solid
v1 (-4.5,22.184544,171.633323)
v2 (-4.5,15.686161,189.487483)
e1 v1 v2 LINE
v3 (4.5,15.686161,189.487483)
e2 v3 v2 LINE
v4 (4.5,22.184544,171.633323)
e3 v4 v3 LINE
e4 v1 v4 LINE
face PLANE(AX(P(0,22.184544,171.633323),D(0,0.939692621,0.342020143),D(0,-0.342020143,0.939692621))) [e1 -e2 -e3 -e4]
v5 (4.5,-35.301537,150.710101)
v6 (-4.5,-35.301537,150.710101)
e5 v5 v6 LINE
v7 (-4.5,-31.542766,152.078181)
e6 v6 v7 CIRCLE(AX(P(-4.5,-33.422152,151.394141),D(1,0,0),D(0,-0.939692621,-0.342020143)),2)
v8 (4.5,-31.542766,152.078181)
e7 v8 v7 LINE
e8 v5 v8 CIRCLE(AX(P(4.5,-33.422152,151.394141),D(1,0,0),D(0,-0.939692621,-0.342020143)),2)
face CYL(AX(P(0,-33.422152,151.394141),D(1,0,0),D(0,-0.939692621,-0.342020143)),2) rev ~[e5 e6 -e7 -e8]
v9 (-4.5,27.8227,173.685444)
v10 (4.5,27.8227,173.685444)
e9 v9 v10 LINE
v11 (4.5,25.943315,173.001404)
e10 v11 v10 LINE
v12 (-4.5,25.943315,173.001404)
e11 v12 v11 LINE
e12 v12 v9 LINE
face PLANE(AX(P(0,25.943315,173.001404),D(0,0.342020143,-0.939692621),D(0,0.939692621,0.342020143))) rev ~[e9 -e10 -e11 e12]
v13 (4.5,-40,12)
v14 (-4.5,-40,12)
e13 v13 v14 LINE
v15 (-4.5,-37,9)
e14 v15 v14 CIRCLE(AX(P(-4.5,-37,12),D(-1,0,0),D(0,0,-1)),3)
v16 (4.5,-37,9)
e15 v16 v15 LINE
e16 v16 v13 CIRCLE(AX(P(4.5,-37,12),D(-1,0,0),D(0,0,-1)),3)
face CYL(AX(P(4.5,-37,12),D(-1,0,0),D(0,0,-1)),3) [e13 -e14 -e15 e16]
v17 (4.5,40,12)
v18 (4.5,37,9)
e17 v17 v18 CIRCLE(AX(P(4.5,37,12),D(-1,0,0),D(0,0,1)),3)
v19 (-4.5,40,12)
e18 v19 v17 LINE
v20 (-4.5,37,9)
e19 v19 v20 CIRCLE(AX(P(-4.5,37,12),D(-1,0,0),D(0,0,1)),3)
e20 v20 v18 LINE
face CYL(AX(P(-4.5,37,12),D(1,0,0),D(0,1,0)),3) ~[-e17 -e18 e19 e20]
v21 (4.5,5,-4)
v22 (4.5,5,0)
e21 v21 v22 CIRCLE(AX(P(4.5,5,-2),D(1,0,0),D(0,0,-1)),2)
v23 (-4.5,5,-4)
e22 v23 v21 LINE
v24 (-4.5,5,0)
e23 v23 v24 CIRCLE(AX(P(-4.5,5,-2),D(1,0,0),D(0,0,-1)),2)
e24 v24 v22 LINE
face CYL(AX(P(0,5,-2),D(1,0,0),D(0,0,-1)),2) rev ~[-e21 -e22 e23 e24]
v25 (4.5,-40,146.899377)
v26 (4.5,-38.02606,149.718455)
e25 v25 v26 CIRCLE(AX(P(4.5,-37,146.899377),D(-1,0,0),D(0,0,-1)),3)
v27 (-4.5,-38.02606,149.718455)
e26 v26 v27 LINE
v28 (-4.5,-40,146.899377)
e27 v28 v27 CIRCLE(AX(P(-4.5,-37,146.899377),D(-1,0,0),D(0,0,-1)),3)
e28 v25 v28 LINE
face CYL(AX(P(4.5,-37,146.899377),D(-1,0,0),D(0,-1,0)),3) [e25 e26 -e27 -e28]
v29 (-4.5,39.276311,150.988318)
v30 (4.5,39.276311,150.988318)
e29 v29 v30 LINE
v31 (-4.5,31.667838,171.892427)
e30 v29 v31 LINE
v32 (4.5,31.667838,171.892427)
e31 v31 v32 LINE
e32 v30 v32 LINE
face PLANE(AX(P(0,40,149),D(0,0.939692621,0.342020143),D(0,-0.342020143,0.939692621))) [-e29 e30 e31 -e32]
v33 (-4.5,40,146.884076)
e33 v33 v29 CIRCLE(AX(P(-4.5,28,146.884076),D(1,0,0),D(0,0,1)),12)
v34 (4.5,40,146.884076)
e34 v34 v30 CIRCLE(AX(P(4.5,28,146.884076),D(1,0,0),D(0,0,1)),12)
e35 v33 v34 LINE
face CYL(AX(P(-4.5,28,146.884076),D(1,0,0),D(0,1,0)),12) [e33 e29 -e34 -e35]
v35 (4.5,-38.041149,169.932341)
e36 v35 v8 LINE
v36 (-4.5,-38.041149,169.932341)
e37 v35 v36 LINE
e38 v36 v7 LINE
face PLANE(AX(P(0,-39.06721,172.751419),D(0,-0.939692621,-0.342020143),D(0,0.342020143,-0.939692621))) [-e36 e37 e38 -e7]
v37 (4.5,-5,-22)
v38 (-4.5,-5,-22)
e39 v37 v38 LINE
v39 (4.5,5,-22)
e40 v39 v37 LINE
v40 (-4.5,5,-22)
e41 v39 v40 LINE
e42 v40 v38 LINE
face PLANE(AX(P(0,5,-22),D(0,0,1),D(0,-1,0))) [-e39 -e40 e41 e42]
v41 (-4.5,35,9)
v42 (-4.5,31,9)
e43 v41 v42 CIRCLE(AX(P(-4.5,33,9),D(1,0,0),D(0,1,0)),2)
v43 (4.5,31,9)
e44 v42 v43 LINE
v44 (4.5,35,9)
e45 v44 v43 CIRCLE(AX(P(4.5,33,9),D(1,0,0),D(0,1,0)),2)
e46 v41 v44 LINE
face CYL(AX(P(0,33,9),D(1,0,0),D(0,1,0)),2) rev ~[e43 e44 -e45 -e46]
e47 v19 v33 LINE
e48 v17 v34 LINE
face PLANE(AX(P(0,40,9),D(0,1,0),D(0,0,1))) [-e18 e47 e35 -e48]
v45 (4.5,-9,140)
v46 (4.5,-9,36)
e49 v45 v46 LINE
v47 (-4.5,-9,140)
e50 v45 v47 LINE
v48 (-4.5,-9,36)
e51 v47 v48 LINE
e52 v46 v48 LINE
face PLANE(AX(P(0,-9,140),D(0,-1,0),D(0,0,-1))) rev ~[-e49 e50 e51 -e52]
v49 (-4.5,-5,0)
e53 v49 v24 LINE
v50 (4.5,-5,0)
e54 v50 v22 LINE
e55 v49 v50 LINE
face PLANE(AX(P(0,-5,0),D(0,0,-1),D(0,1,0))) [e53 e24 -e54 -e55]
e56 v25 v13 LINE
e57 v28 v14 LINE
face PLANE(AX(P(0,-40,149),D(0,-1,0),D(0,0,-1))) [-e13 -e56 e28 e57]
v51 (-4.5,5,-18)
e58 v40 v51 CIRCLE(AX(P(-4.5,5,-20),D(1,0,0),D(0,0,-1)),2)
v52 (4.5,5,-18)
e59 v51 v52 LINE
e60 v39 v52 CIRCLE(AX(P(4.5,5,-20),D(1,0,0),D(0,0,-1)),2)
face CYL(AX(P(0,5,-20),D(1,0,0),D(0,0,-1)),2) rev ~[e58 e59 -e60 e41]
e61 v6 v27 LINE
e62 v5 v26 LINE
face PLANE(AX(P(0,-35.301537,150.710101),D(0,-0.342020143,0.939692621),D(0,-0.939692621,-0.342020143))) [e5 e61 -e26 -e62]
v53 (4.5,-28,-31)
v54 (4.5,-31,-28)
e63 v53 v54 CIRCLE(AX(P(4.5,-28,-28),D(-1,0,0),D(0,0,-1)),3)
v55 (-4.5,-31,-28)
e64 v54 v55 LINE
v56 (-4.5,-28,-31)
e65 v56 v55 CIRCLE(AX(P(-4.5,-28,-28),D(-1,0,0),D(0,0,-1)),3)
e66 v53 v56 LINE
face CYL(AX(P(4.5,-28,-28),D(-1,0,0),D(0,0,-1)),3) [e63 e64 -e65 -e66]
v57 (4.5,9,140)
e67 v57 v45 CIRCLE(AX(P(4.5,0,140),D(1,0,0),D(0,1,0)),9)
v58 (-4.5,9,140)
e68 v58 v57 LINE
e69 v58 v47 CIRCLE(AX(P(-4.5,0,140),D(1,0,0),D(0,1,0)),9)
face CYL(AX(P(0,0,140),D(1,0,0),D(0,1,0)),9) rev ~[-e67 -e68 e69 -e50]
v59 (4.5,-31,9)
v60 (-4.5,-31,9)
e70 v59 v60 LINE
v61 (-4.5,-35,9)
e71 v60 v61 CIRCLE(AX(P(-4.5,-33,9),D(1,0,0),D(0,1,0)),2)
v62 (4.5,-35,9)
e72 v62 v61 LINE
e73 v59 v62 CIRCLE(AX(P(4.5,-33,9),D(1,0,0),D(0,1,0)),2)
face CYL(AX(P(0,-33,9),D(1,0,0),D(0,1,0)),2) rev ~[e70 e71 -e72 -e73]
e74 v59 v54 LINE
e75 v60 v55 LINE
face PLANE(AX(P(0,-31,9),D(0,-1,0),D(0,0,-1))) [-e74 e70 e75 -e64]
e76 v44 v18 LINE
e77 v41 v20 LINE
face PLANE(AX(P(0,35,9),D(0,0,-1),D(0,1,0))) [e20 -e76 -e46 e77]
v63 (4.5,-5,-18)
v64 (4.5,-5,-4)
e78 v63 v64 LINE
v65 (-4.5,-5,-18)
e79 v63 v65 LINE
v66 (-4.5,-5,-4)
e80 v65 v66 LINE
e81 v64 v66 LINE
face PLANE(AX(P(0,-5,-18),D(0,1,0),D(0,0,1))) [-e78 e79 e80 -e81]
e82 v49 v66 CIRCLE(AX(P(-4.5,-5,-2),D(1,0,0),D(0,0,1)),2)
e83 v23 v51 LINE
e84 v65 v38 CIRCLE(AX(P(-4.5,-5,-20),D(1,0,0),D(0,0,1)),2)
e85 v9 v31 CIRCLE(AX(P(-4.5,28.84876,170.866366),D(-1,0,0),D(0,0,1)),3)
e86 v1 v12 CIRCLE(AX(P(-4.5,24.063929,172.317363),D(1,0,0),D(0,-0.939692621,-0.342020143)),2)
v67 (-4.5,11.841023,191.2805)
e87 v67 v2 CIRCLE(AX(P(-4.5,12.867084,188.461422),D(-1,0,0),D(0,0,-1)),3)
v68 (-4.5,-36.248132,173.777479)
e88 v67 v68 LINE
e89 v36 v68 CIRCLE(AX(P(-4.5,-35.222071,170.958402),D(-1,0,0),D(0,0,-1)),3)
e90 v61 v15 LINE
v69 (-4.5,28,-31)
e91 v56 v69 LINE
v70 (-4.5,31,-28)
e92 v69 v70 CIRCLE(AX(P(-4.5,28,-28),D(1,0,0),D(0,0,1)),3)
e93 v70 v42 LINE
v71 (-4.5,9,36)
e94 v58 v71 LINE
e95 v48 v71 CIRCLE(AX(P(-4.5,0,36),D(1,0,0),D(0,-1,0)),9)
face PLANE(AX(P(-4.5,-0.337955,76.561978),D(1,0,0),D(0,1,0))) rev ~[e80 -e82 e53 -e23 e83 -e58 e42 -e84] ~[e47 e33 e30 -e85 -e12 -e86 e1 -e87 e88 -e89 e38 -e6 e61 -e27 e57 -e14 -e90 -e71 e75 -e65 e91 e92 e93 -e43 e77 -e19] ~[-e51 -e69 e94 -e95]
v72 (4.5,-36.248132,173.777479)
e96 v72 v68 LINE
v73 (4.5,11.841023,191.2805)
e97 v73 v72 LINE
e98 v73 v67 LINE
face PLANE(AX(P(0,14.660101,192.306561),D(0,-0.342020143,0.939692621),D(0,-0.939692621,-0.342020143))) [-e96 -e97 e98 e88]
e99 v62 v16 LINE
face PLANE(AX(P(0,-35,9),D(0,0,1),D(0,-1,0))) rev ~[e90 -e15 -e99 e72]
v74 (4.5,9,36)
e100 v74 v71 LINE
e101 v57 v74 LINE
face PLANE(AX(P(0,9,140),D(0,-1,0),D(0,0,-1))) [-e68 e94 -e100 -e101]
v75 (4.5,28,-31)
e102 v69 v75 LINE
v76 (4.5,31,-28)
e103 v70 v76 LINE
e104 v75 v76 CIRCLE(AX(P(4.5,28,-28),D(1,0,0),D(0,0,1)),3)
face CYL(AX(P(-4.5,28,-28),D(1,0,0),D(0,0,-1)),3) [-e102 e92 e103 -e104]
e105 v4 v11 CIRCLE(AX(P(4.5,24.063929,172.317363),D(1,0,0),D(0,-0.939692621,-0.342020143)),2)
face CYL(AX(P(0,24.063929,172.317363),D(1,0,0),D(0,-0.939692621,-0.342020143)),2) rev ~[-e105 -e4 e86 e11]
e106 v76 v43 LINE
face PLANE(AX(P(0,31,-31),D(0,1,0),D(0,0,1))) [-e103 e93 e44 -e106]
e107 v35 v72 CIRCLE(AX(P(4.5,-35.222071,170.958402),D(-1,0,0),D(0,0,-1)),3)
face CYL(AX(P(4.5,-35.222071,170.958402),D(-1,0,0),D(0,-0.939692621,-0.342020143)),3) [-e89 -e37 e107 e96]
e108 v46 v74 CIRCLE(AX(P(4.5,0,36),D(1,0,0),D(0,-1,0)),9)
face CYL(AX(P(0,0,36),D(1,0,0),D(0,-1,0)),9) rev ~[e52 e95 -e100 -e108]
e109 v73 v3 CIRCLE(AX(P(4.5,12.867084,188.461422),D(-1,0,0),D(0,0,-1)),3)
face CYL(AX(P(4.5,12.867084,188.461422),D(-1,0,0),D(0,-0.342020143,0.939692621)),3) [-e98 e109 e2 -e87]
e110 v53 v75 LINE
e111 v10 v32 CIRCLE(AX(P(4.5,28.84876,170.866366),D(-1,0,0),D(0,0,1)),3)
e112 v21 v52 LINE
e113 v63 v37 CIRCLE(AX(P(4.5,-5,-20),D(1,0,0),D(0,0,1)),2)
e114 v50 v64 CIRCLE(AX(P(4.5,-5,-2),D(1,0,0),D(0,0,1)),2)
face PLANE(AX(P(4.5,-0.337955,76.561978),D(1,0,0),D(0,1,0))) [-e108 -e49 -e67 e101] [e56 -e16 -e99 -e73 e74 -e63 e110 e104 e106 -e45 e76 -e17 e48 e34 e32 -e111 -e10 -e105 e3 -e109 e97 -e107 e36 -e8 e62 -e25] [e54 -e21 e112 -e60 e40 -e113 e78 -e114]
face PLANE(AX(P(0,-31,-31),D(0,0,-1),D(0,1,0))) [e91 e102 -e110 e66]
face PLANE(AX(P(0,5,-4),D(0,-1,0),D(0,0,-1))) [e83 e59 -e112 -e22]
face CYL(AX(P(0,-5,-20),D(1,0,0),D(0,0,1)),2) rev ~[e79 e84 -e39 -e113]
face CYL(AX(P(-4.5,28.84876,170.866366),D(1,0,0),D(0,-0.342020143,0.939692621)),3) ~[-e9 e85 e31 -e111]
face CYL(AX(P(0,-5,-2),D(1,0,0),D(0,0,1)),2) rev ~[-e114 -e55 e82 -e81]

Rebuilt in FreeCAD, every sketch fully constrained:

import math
import FreeCAD as App
import Part
import Sketcher
Q = App.Units.Quantity


def edges_at(feature, points):
    """Names of the edges that pass closest to the given points."""
    edges = feature.Shape.Edges
    near = lambda p: min(range(len(edges)), key=lambda i: edges[i].distToShape(Part.Vertex(*p))[0])
    return sorted({f"Edge{near(p) + 1}" for p in points})

doc = App.newDocument("Part")
body = doc.addObject("PartDesign::Body", "Body")

# Sketch on YZ plane
sketch1 = body.newObject("Sketcher::SketchObject", "Sketch")
sketch1.AttachmentSupport = (doc.getObject("YZ_Plane"), [""])
sketch1.MapMode = "FlatFace"
sketch1.addGeometry(Part.LineSegment(App.Vector(-31, -31, 0), App.Vector(31, -31, 0)), False)
sketch1.addGeometry(Part.LineSegment(App.Vector(31, -31, 0), App.Vector(31, 9, 0)), False)
sketch1.addGeometry(Part.ArcOfCircle(Part.Circle(App.Vector(33, 9, 0), App.Vector(0, 0, 1), 2), math.radians(0), math.radians(180)), False)
sketch1.addGeometry(Part.LineSegment(App.Vector(35, 9, 0), App.Vector(40, 9, 0)), False)
sketch1.addGeometry(Part.LineSegment(App.Vector(40, 9, 0), App.Vector(40, 149, 0)), False)
sketch1.addGeometry(Part.LineSegment(App.Vector(40, 149, 0), App.Vector(30.6, 174.7, 0)), False)
sketch1.addGeometry(Part.LineSegment(App.Vector(30.6, 174.7, 0), App.Vector(25.9, 173, 0)), False)
sketch1.addGeometry(Part.ArcOfCircle(Part.Circle(App.Vector(24.1, 172.3, 0), App.Vector(0, 0, 1), 2), math.radians(-160), math.radians(20)), False)
sketch1.addGeometry(Part.LineSegment(App.Vector(22.2, 171.6, 0), App.Vector(14.7, 192.3, 0)), False)
sketch1.addGeometry(Part.LineSegment(App.Vector(14.7, 192.3, 0), App.Vector(-39.1, 172.8, 0)), False)
sketch1.addGeometry(Part.LineSegment(App.Vector(-39.1, 172.8, 0), App.Vector(-31.5, 152.1, 0)), False)
sketch1.addGeometry(Part.ArcOfCircle(Part.Circle(App.Vector(-33.4, 151.4, 0), App.Vector(0, 0, 1), 2), math.radians(-160), math.radians(20)), False)
sketch1.addGeometry(Part.LineSegment(App.Vector(-35.3, 150.7, 0), App.Vector(-40, 149, 0)), False)
sketch1.addGeometry(Part.LineSegment(App.Vector(-40, 149, 0), App.Vector(-40, 9, 0)), False)
sketch1.addGeometry(Part.LineSegment(App.Vector(-40, 9, 0), App.Vector(-35, 9, 0)), False)
sketch1.addGeometry(Part.ArcOfCircle(Part.Circle(App.Vector(-33, 9, 0), App.Vector(0, 0, 1), 2), math.radians(0), math.radians(180)), False)
sketch1.addGeometry(Part.LineSegment(App.Vector(-31, 9, 0), App.Vector(-31, -31, 0)), False)
sketch1.addGeometry(Part.ArcOfCircle(Part.Circle(App.Vector(-5, -2, 0), App.Vector(0, 0, 1), 2), math.radians(90), math.radians(270)), False)
sketch1.addGeometry(Part.LineSegment(App.Vector(-5, 0, 0), App.Vector(5, 0, 0)), False)
sketch1.addGeometry(Part.ArcOfCircle(Part.Circle(App.Vector(5, -2, 0), App.Vector(0, 0, 1), 2), math.radians(-90), math.radians(90)), False)
sketch1.addGeometry(Part.LineSegment(App.Vector(5, -4, 0), App.Vector(5, -18, 0)), False)
sketch1.addGeometry(Part.ArcOfCircle(Part.Circle(App.Vector(5, -20, 0), App.Vector(0, 0, 1), 2), math.radians(-90), math.radians(90)), False)
sketch1.addGeometry(Part.LineSegment(App.Vector(5, -22, 0), App.Vector(-5, -22, 0)), False)
sketch1.addGeometry(Part.ArcOfCircle(Part.Circle(App.Vector(-5, -20, 0), App.Vector(0, 0, 1), 2), math.radians(90), math.radians(270)), False)
sketch1.addGeometry(Part.LineSegment(App.Vector(-5, -18, 0), App.Vector(-5, -4, 0)), False)
sketch1.addGeometry(Part.ArcOfCircle(Part.Circle(App.Vector(0, 140, 0), App.Vector(0, 0, 1), 9), math.radians(0), math.radians(180)), False)
sketch1.addGeometry(Part.LineSegment(App.Vector(9, 140, 0), App.Vector(9, 36, 0)), False)
sketch1.addGeometry(Part.ArcOfCircle(Part.Circle(App.Vector(0, 36, 0), App.Vector(0, 0, 1), 9), math.radians(180), math.radians(360)), False)
sketch1.addGeometry(Part.LineSegment(App.Vector(-9, 36, 0), App.Vector(-9, 140, 0)), False)
sketch1.addConstraint(Sketcher.Constraint("Coincident", 0, 2, 1, 1))
sketch1.addConstraint(Sketcher.Constraint("Tangent", 1, 2, 2, 2))
sketch1.addConstraint(Sketcher.Constraint("Coincident", 2, 1, 3, 1))
sketch1.addConstraint(Sketcher.Constraint("Coincident", 3, 2, 4, 1))
sketch1.addConstraint(Sketcher.Constraint("Coincident", 4, 2, 5, 1))
sketch1.addConstraint(Sketcher.Constraint("Coincident", 5, 2, 6, 1))
sketch1.addConstraint(Sketcher.Constraint("Coincident", 6, 2, 7, 2))
sketch1.addConstraint(Sketcher.Constraint("Tangent", 7, 1, 8, 1))
sketch1.addConstraint(Sketcher.Constraint("Coincident", 8, 2, 9, 1))
sketch1.addConstraint(Sketcher.Constraint("Coincident", 9, 2, 10, 1))
sketch1.addConstraint(Sketcher.Constraint("Tangent", 10, 2, 11, 2))
sketch1.addConstraint(Sketcher.Constraint("Coincident", 11, 1, 12, 1))
sketch1.addConstraint(Sketcher.Constraint("Coincident", 12, 2, 13, 1))
sketch1.addConstraint(Sketcher.Constraint("Coincident", 13, 2, 14, 1))
sketch1.addConstraint(Sketcher.Constraint("Coincident", 14, 2, 15, 2))
sketch1.addConstraint(Sketcher.Constraint("Tangent", 15, 1, 16, 1))
sketch1.addConstraint(Sketcher.Constraint("Coincident", 16, 2, 0, 1))
sketch1.addConstraint(Sketcher.Constraint("Tangent", 17, 1, 18, 1))
sketch1.addConstraint(Sketcher.Constraint("Tangent", 18, 2, 19, 2))
sketch1.addConstraint(Sketcher.Constraint("Coincident", 19, 1, 20, 1))
sketch1.addConstraint(Sketcher.Constraint("Coincident", 20, 2, 21, 2))
sketch1.addConstraint(Sketcher.Constraint("Tangent", 21, 1, 22, 1))
sketch1.addConstraint(Sketcher.Constraint("Tangent", 22, 2, 23, 2))
sketch1.addConstraint(Sketcher.Constraint("Coincident", 23, 1, 24, 1))
sketch1.addConstraint(Sketcher.Constraint("Coincident", 24, 2, 17, 2))
sketch1.addConstraint(Sketcher.Constraint("Tangent", 25, 1, 26, 1))
sketch1.addConstraint(Sketcher.Constraint("Tangent", 26, 2, 27, 2))
sketch1.addConstraint(Sketcher.Constraint("Tangent", 27, 1, 28, 1))
sketch1.addConstraint(Sketcher.Constraint("Tangent", 28, 2, 25, 2))
sketch1.addConstraint(Sketcher.Constraint("Horizontal", 0))
sketch1.addConstraint(Sketcher.Constraint("Vertical", 1))
sketch1.addConstraint(Sketcher.Constraint("Horizontal", 3))
sketch1.addConstraint(Sketcher.Constraint("Vertical", 4))
sketch1.addConstraint(Sketcher.Constraint("Vertical", 13))
sketch1.addConstraint(Sketcher.Constraint("Horizontal", 14))
sketch1.addConstraint(Sketcher.Constraint("Vertical", 16))
sketch1.addConstraint(Sketcher.Constraint("Horizontal", 18))
sketch1.addConstraint(Sketcher.Constraint("Vertical", 20))
sketch1.addConstraint(Sketcher.Constraint("Horizontal", 22))
sketch1.addConstraint(Sketcher.Constraint("Vertical", 24))
sketch1.addConstraint(Sketcher.Constraint("Vertical", 26))
sketch1.addConstraint(Sketcher.Constraint("Vertical", 28))
sketch1.addConstraint(Sketcher.Constraint("Equal", 2, 7))
sketch1.addConstraint(Sketcher.Constraint("Equal", 7, 11))
sketch1.addConstraint(Sketcher.Constraint("Equal", 11, 15))
sketch1.addConstraint(Sketcher.Constraint("Equal", 15, 17))
sketch1.addConstraint(Sketcher.Constraint("Equal", 17, 19))
sketch1.addConstraint(Sketcher.Constraint("Equal", 19, 21))
sketch1.addConstraint(Sketcher.Constraint("Equal", 21, 23))
sketch1.addConstraint(Sketcher.Constraint("Symmetric", 17, 1, 18, 2, -1, 1))
sketch1.addConstraint(Sketcher.Constraint("Symmetric", 2, 3, 15, 3, -2))
sketch1.addConstraint(Sketcher.Constraint("Symmetric", 4, 2, 12, 2, -2))
sketch1.addConstraint(Sketcher.Constraint("PointOnObject", 25, 3, -2))
sketch1.addConstraint(Sketcher.Constraint("Perpendicular", 5, 6))
sketch1.addConstraint(Sketcher.Constraint("Perpendicular", 6, 8))
sketch1.addConstraint(Sketcher.Constraint("Perpendicular", 8, 9))
sketch1.addConstraint(Sketcher.Constraint("Perpendicular", 9, 10))
sketch1.addConstraint(Sketcher.Constraint("Perpendicular", 10, 12))
sketch1.addConstraint(Sketcher.Constraint("Horizontal", 1, 2, 2, 1))
sketch1.addConstraint(Sketcher.Constraint("Horizontal", 3, 2, 13, 2))
sketch1.addConstraint(Sketcher.Constraint("Vertical", 19, 3, 21, 3))
sketch1.addConstraint(Sketcher.Constraint("Vertical", 17, 3, 23, 3))
sketch1.addConstraint(Sketcher.Constraint("Vertical", 18, 2, 19, 1))
sketch1.addConstraint(Sketcher.Constraint("Vertical", 22, 2, 23, 1))
sketch1.addConstraint(Sketcher.Constraint("Equal", 8, 10))
sketch1.addConstraint(Sketcher.Constraint("Equal", 6, 12))
sketch1.addConstraint(Sketcher.Constraint("Radius", 2, Q("2 mm")))
sketch1.addConstraint(Sketcher.Constraint("Radius", 25, Q("9 mm")))
sketch1.addConstraint(Sketcher.Constraint("DistanceX", 0, 1, 0, 2, Q("62 mm")))
sketch1.addConstraint(Sketcher.Constraint("DistanceX", 3, 1, 3, 2, Q("5 mm")))
sketch1.addConstraint(Sketcher.Constraint("DistanceX", 18, 1, 18, 2, Q("10 mm")))
sketch1.addConstraint(Sketcher.Constraint("DistanceY", 1, 1, 1, 2, Q("40 mm")))
sketch1.addConstraint(Sketcher.Constraint("DistanceY", 4, 1, 4, 2, Q("140 mm")))
sketch1.addConstraint(Sketcher.Constraint("DistanceY", 20, 2, 20, 1, Q("14 mm")))
sketch1.addConstraint(Sketcher.Constraint("DistanceY", 26, 2, 26, 1, Q("104 mm")))
sketch1.addConstraint(Sketcher.Constraint("Angle", 5, Q("110 deg")))
sketch1.addConstraint(Sketcher.Constraint("Distance", 6, Q("5 mm")))
sketch1.addConstraint(Sketcher.Constraint("Distance", 8, Q("22 mm")))
sketch1.addConstraint(Sketcher.Constraint("DistanceY", -1, 1, 2, 3, Q("9 mm")))
sketch1.addConstraint(Sketcher.Constraint("DistanceY", -1, 1, 25, 3, Q("140 mm")))
sketch1.addConstraint(Sketcher.Constraint("DistanceX", -1, 1, 8, 2, Q("14.660101 mm")))
sketch1.addConstraint(Sketcher.Constraint("Distance", 5, Q("27.361611 mm")))
pad1 = body.newObject("PartDesign::Pad", "Pad")
pad1.Profile = sketch1
pad1.Length = 9
pad1.Midplane = True
doc.recompute()

fillet = body.newObject("PartDesign::Fillet", "Fillet")
fillet.Base = (pad1, edges_at(pad1, [
    (0, 30.642, 174.712),
    (0, -40, 149),
    (0, -40, 9),
    (0, 40, 9),
    (0, 31, -31),
    (0, -31, -31),
    (0, -39.067, 172.751),
    (0, 14.66, 192.307),
]))
fillet.Radius = 3
doc.recompute()

fillet2 = body.newObject("PartDesign::Fillet", "Fillet001")
fillet2.Base = (fillet, edges_at(fillet, [(0, 40, 149)]))
fillet2.Radius = 12

doc.recompute()
